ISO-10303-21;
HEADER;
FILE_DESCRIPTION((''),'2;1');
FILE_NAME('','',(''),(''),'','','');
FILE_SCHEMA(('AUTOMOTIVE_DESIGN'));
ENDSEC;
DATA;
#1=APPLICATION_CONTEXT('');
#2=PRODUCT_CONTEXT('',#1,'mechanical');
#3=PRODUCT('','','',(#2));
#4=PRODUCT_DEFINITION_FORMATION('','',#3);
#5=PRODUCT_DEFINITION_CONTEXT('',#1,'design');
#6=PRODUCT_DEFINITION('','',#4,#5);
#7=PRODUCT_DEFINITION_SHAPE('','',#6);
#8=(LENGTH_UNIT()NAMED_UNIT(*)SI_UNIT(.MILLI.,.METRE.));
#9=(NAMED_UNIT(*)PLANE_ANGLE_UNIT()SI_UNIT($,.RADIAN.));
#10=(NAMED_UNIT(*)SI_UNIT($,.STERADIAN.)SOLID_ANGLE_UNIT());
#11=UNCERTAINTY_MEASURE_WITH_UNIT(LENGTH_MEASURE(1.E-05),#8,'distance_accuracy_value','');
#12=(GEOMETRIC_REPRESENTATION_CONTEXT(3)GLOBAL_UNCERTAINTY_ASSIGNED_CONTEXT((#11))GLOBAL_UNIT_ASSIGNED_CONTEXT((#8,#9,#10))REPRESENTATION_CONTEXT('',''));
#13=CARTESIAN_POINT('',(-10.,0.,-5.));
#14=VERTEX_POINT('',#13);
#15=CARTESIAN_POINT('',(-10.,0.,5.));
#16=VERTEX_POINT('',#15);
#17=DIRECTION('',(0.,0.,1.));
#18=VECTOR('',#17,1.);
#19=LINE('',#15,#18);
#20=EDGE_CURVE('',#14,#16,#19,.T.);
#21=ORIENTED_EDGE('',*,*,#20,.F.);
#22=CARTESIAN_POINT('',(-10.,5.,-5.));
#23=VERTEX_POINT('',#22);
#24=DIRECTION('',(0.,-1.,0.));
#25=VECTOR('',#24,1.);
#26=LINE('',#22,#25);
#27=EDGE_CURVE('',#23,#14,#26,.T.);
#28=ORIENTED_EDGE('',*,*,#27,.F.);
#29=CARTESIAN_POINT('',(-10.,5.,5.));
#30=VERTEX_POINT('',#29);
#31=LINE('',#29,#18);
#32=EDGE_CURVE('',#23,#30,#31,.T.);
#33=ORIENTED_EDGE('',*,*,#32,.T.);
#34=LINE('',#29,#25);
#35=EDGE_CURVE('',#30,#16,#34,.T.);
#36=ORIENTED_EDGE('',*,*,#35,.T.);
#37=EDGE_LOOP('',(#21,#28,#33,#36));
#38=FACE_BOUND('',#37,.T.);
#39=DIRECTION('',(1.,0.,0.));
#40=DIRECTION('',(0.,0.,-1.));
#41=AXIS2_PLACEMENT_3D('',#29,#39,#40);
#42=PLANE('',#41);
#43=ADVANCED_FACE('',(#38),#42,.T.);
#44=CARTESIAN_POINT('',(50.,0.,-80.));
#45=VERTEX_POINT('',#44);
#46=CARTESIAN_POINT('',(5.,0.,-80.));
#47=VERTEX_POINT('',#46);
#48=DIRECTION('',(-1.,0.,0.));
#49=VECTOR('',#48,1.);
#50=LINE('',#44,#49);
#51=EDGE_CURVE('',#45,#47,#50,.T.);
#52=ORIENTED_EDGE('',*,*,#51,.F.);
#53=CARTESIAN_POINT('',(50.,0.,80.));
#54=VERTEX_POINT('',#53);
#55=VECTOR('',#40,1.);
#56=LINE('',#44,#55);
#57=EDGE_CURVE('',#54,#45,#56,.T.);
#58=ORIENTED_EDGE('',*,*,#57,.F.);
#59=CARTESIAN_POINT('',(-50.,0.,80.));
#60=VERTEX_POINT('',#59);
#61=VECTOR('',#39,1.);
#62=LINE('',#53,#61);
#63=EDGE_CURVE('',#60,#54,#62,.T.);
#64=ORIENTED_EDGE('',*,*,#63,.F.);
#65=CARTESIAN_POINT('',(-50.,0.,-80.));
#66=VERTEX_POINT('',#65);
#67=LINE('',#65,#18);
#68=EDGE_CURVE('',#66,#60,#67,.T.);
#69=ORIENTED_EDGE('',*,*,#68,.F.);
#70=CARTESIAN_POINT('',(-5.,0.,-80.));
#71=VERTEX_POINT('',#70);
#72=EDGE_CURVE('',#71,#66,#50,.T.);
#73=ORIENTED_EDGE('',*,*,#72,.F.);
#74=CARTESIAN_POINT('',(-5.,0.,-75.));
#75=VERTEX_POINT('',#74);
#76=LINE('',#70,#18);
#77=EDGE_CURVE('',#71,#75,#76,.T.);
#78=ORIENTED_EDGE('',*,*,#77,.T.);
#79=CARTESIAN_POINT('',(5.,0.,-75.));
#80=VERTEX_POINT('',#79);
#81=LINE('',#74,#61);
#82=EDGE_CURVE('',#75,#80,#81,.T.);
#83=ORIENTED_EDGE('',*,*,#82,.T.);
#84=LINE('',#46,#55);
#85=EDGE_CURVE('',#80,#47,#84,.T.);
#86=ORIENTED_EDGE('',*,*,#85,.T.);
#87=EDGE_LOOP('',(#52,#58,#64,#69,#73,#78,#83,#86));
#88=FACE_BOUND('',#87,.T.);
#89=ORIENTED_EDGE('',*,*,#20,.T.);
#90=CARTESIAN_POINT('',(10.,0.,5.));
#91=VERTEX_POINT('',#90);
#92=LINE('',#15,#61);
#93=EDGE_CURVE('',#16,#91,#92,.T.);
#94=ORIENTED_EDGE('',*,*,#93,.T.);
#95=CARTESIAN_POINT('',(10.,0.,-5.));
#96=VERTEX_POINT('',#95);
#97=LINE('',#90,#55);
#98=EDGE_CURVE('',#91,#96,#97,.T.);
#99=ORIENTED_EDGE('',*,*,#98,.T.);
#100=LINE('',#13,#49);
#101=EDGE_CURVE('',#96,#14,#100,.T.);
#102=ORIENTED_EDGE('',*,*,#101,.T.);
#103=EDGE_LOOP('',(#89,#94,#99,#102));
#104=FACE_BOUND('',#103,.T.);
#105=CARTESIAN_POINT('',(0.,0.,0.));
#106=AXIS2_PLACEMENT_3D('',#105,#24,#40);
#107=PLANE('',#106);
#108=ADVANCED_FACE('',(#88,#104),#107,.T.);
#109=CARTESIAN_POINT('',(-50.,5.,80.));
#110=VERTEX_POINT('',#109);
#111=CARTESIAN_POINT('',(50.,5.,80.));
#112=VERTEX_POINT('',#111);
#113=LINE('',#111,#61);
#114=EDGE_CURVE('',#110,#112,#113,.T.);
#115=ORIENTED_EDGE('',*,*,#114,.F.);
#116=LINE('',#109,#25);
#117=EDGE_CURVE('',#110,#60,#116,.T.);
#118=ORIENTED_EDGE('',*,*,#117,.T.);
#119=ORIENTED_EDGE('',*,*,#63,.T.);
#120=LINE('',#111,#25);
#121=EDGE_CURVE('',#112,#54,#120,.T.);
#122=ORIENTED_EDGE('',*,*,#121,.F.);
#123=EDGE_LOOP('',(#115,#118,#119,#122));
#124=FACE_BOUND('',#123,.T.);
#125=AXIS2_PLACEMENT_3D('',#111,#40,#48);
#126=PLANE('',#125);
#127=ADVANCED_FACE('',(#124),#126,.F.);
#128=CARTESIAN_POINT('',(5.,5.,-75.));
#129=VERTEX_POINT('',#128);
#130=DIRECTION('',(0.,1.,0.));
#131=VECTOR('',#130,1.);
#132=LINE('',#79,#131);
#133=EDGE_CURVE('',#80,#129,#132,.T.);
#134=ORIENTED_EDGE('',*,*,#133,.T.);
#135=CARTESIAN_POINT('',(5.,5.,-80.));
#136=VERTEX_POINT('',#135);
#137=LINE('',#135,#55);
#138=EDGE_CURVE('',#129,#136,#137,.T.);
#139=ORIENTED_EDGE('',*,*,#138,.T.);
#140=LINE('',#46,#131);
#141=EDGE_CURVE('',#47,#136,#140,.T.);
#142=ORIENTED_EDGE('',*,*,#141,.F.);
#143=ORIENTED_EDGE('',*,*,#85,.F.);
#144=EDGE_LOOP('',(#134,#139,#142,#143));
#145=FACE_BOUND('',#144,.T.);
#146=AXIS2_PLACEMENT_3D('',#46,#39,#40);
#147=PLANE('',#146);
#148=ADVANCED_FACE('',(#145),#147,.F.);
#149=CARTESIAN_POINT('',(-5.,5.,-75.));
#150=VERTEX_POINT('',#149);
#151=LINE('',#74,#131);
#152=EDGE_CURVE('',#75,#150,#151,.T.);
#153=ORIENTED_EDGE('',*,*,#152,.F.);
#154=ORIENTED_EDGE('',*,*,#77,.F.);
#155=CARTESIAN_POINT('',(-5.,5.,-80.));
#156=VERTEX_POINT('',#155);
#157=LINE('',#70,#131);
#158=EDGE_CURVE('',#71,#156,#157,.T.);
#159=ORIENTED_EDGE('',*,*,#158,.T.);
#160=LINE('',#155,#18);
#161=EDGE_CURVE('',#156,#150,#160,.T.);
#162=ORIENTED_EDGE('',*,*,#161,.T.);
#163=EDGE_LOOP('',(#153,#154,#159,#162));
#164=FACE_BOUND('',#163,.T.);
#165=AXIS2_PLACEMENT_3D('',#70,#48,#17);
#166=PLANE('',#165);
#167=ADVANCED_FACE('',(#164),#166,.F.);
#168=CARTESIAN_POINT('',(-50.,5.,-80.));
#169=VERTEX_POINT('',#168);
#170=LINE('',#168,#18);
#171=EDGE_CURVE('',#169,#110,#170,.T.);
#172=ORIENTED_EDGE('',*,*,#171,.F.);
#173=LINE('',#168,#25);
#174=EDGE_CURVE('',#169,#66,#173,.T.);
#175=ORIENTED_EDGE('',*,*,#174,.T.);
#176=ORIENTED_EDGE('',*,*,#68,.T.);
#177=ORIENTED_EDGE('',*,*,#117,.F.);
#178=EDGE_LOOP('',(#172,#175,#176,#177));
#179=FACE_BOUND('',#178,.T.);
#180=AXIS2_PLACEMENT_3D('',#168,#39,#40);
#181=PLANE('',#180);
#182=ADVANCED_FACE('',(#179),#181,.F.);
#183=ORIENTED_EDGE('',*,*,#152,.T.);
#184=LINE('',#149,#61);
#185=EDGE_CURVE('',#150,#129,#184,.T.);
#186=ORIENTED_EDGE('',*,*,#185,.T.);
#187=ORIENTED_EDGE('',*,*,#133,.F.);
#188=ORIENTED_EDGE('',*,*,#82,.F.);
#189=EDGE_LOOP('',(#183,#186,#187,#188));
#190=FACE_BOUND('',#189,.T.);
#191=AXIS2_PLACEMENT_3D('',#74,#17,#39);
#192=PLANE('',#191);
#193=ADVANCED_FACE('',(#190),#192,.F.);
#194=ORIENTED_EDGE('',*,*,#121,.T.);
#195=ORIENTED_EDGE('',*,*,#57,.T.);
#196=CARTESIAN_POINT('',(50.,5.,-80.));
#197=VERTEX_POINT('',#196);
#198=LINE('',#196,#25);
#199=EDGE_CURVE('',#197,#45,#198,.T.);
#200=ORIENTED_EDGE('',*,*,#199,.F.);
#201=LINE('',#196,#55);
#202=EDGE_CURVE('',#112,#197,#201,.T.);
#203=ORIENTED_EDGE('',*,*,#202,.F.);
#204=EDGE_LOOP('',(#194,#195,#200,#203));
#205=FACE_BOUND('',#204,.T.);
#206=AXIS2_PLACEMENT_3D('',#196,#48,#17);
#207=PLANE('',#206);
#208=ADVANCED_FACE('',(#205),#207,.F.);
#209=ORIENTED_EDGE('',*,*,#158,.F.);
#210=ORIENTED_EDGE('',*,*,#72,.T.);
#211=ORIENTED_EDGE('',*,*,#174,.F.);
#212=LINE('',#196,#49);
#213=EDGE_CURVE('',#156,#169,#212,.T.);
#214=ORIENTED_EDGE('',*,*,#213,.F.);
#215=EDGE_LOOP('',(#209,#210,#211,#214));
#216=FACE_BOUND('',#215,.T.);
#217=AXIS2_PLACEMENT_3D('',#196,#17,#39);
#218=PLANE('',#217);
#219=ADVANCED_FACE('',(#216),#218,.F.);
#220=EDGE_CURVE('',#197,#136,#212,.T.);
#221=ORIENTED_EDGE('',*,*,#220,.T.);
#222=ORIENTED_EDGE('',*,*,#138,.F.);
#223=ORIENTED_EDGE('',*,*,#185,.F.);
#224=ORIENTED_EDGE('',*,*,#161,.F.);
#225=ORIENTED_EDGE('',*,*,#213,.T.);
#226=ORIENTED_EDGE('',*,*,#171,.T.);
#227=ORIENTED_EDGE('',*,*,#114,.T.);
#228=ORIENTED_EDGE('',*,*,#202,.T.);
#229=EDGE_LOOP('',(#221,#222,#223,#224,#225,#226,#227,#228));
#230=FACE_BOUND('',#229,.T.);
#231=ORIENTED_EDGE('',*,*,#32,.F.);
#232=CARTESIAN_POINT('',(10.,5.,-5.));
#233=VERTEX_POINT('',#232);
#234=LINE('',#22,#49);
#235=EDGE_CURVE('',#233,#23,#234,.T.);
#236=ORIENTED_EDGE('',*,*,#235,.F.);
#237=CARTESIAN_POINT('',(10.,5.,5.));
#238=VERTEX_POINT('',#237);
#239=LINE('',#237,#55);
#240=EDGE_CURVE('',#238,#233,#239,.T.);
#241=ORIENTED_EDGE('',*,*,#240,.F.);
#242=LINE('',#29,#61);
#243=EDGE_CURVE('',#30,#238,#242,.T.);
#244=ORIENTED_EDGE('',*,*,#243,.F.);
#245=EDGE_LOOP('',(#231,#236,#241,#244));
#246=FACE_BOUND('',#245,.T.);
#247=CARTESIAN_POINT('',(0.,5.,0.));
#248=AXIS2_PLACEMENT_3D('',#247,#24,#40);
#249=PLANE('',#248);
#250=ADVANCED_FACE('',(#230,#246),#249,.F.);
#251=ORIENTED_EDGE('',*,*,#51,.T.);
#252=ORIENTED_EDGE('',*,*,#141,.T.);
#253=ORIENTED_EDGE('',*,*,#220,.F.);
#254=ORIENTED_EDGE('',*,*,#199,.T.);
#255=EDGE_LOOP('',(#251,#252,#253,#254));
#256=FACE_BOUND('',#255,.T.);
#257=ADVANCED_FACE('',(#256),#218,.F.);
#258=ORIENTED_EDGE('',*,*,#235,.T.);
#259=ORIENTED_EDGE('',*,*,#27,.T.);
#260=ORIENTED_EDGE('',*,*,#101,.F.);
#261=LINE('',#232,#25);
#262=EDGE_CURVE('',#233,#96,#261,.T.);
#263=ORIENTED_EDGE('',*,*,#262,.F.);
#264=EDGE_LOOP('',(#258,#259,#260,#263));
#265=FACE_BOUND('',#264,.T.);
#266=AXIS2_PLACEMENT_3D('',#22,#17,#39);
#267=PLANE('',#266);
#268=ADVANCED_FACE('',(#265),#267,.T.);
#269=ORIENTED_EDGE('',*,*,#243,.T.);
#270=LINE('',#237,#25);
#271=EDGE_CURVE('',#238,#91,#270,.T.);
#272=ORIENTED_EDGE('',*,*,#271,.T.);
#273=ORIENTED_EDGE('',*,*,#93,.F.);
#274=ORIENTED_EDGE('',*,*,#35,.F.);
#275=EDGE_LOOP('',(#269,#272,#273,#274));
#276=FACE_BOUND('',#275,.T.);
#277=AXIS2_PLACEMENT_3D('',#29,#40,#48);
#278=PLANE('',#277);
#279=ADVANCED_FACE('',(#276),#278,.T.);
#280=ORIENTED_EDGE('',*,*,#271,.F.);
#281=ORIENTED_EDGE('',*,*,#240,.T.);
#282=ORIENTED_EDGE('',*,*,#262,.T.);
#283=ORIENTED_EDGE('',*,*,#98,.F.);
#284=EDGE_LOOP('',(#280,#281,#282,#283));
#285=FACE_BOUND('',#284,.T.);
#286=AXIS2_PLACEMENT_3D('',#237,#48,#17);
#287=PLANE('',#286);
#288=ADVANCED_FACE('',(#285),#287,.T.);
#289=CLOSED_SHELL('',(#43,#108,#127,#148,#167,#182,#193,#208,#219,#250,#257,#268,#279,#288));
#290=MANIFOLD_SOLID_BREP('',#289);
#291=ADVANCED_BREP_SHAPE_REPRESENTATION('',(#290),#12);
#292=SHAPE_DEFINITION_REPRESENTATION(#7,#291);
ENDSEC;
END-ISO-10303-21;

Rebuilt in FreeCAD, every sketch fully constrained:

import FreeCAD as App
import Part
import Sketcher

V = App.Vector
Q = App.Units.Quantity

doc = App.newDocument("Part")
params = doc.addObject("Spreadsheet::Sheet", "Params")
for row, (alias, value) in enumerate([
    ("sketch1_width", "100 mm"),
    ("sketch1_width2", "20 mm"),
    ("sketch1_height", "160 mm"),
    ("sketch1_height2", "10 mm"),
    ("pad1_length", "5 mm"),
    ("sketch2_width", "10 mm"),
    ("sketch2_height", "5 mm"),
], start=1):
    params.set(f"A{row}", alias)
    params.set(f"B{row}", "=" + value)
    params.setAlias(f"B{row}", alias)

body = doc.addObject("PartDesign::Body", "Body")

sketch1 = body.newObject("Sketcher::SketchObject", "Sketch")
sketch1.AttachmentSupport = (doc.getObject("XZ_Plane"), [""])
sketch1.MapMode = "FlatFace"
sketch1.addGeometry([
    Part.LineSegment(V(-50, -80, 0), V(-50, 80, 0)),
    Part.LineSegment(V(-50, 80, 0), V(50, 80, 0)),
    Part.LineSegment(V(50, 80, 0), V(50, -80, 0)),
    Part.LineSegment(V(50, -80, 0), V(-50, -80, 0)),
    Part.LineSegment(V(10, 5, 0), V(-10, 5, 0)),
    Part.LineSegment(V(-10, 5, 0), V(-10, -5, 0)),
    Part.LineSegment(V(-10, -5, 0), V(10, -5, 0)),
    Part.LineSegment(V(10, -5, 0), V(10, 5, 0)),
], False)
sketch1.addConstraint([
    Sketcher.Constraint("Coincident", 0, 2, 1, 1),
    Sketcher.Constraint("Coincident", 1, 2, 2, 1),
    Sketcher.Constraint("Coincident", 2, 2, 3, 1),
    Sketcher.Constraint("Coincident", 3, 2, 0, 1),
    Sketcher.Constraint("Coincident", 4, 2, 5, 1),
    Sketcher.Constraint("Coincident", 5, 2, 6, 1),
    Sketcher.Constraint("Coincident", 6, 2, 7, 1),
    Sketcher.Constraint("Coincident", 7, 2, 4, 1),
    Sketcher.Constraint("Vertical", 0),
    Sketcher.Constraint("Horizontal", 1),
    Sketcher.Constraint("Vertical", 2),
    Sketcher.Constraint("Horizontal", 3),
    Sketcher.Constraint("Horizontal", 4),
    Sketcher.Constraint("Vertical", 5),
    Sketcher.Constraint("Horizontal", 6),
    Sketcher.Constraint("Vertical", 7),
    Sketcher.Constraint("Symmetric", 0, 2, 2, 2, -1, 1),
    Sketcher.Constraint("Symmetric", 4, 2, 6, 2, -1, 1),
    Sketcher.Constraint("DistanceX", 1, 1, 1, 2, Q("100 mm")),
    Sketcher.Constraint("DistanceX", 4, 2, 4, 1, Q("20 mm")),
    Sketcher.Constraint("DistanceY", 0, 1, 0, 2, Q("160 mm")),
    Sketcher.Constraint("DistanceY", 5, 2, 5, 1, Q("10 mm")),
])
sketch1.setExpression("Constraints[18]", "Params.sketch1_width")
sketch1.setExpression("Constraints[19]", "Params.sketch1_width2")
sketch1.setExpression("Constraints[20]", "Params.sketch1_height")
sketch1.setExpression("Constraints[21]", "Params.sketch1_height2")
pad1 = body.newObject("PartDesign::Pad", "Pad")
pad1.Profile = sketch1
pad1.setExpression("Length", "Params.pad1_length")
pad1.Reversed = True

sketch2 = body.newObject("Sketcher::SketchObject", "Sketch001")
sketch2.AttachmentSupport = (doc.getObject("XZ_Plane"), [""])
sketch2.MapMode = "FlatFace"
sketch2.AttachmentOffset = App.Placement(V(0, 0, -5), App.Rotation())
sketch2.addGeometry([
    Part.LineSegment(V(-5, -80, 0), V(-5, -75, 0)),
    Part.LineSegment(V(-5, -75, 0), V(5, -75, 0)),
    Part.LineSegment(V(5, -75, 0), V(5, -80, 0)),
    Part.LineSegment(V(5, -80, 0), V(-5, -80, 0)),
], False)
sketch2.addConstraint([
    Sketcher.Constraint("Coincident", 0, 2, 1, 1),
    Sketcher.Constraint("Coincident", 1, 2, 2, 1),
    Sketcher.Constraint("Coincident", 2, 2, 3, 1),
    Sketcher.Constraint("Coincident", 3, 2, 0, 1),
    Sketcher.Constraint("Vertical", 0),
    Sketcher.Constraint("Horizontal", 1),
    Sketcher.Constraint("Vertical", 2),
    Sketcher.Constraint("Horizontal", 3),
    Sketcher.Constraint("DistanceX", 1, 1, 1, 2, Q("10 mm")),
    Sketcher.Constraint("DistanceY", 0, 1, 0, 2, Q("5 mm")),
    Sketcher.Constraint("DistanceX", 0, 2, -1, 1, Q("5 mm")),
    Sketcher.Constraint("DistanceY", 0, 2, -1, 1, Q("75 mm")),
])
sketch2.setExpression("Constraints[8]", "Params.sketch2_width")
sketch2.setExpression("Constraints[9]", "Params.sketch2_height")
pocket1 = body.newObject("PartDesign::Pocket", "Pocket")
pocket1.Profile = sketch2
pocket1.Type = "ThroughAll"
pocket1.Reversed = True

doc.recompute()
